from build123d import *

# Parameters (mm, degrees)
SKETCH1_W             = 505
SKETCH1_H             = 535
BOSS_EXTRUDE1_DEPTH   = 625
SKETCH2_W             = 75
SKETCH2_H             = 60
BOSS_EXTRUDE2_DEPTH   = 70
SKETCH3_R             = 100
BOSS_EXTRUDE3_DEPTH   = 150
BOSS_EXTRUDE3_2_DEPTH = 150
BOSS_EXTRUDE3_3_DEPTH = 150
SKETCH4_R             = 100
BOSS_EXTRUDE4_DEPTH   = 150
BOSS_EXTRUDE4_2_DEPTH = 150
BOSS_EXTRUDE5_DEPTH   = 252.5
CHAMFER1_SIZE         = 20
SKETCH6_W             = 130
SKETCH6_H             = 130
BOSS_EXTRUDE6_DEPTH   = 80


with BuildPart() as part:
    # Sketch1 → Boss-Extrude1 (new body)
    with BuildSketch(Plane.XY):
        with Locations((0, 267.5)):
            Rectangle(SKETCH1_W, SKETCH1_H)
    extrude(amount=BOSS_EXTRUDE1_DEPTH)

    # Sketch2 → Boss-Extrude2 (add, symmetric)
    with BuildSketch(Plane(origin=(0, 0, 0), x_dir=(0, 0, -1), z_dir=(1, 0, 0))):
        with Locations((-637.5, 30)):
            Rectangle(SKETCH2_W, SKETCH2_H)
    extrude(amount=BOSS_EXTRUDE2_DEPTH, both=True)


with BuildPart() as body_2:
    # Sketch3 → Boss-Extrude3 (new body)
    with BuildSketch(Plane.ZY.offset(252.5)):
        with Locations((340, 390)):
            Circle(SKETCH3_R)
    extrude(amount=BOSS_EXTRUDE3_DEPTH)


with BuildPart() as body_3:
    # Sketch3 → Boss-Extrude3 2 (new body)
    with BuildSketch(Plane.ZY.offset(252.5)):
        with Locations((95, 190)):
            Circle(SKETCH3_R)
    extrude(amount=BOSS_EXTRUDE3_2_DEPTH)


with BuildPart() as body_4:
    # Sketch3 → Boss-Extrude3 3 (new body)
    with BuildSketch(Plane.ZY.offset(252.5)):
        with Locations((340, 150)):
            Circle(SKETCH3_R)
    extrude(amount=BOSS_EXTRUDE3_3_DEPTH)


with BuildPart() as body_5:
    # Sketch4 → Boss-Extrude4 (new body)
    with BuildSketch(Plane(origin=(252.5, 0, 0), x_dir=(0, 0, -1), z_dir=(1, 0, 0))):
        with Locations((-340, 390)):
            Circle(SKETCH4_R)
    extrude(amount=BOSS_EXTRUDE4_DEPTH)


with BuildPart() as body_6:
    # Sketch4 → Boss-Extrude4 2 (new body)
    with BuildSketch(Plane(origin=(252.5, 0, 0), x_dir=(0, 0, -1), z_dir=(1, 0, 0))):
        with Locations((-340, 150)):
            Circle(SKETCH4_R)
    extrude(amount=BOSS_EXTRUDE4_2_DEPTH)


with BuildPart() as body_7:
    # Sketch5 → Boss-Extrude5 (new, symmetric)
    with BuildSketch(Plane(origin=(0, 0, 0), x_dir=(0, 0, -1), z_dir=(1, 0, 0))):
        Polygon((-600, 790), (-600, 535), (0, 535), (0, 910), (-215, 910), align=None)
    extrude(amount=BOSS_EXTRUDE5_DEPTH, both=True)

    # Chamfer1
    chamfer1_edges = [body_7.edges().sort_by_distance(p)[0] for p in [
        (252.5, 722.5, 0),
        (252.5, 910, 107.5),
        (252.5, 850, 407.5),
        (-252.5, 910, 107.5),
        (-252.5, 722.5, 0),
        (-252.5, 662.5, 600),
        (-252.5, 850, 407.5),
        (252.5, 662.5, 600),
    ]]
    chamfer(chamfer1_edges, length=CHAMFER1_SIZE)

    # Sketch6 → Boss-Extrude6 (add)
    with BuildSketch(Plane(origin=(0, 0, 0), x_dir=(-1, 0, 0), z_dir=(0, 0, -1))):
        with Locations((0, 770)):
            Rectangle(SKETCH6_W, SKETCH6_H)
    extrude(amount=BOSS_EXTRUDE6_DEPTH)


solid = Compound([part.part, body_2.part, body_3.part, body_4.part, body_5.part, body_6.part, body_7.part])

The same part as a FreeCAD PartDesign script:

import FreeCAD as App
import Part
import Sketcher
Q = App.Units.Quantity


def edges_at(feature, points):
    """Names of the edges that pass closest to the given points."""
    edges = feature.Shape.Edges
    near = lambda p: min(range(len(edges)), key=lambda i: edges[i].distToShape(Part.Vertex(*p))[0])
    return sorted({f"Edge{near(p) + 1}" for p in points})

doc = App.newDocument("Part")
body = doc.addObject("PartDesign::Body", "Body")

sketch1 = body.newObject("Sketcher::SketchObject", "Sketch")
sketch1.AttachmentSupport = (doc.getObject("XY_Plane"), [""])
sketch1.MapMode = "FlatFace"
sketch1.addGeometry([
    Part.LineSegment(App.Vector(-252, 535, 0), App.Vector(-252, 0, 0)),
    Part.LineSegment(App.Vector(-252, 0, 0), App.Vector(252, 0, 0)),
    Part.LineSegment(App.Vector(252, 0, 0), App.Vector(252, 535, 0)),
    Part.LineSegment(App.Vector(252, 535, 0), App.Vector(-252, 535, 0)),
], False)
sketch1.addConstraint([
    Sketcher.Constraint("Coincident", 0, 2, 1, 1),
    Sketcher.Constraint("Coincident", 1, 2, 2, 1),
    Sketcher.Constraint("Coincident", 2, 2, 3, 1),
    Sketcher.Constraint("Coincident", 3, 2, 0, 1),
    Sketcher.Constraint("Vertical", 0),
    Sketcher.Constraint("Horizontal", 1),
    Sketcher.Constraint("Vertical", 2),
    Sketcher.Constraint("Horizontal", 3),
    Sketcher.Constraint("Symmetric", 0, 2, 1, 2, -1, 1),
    Sketcher.Constraint("DistanceX", 1, 1, 1, 2, Q("505 mm")),
    Sketcher.Constraint("DistanceY", 0, 2, 0, 1, Q("535 mm")),
])
pad1 = body.newObject("PartDesign::Pad", "Pad")
pad1.Profile = sketch1
pad1.Length = 625

sketch2 = body.newObject("Sketcher::SketchObject", "Sketch001")
sketch2.AttachmentSupport = (doc.getObject("YZ_Plane"), [""])
sketch2.MapMode = "FlatFace"
sketch2.addGeometry([
    Part.LineSegment(App.Vector(60, 675, 0), App.Vector(0, 675, 0)),
    Part.LineSegment(App.Vector(0, 675, 0), App.Vector(0, 600, 0)),
    Part.LineSegment(App.Vector(0, 600, 0), App.Vector(60, 600, 0)),
    Part.LineSegment(App.Vector(60, 600, 0), App.Vector(60, 675, 0)),
], False)
sketch2.addConstraint([
    Sketcher.Constraint("Coincident", 0, 2, 1, 1),
    Sketcher.Constraint("Coincident", 1, 2, 2, 1),
    Sketcher.Constraint("Coincident", 2, 2, 3, 1),
    Sketcher.Constraint("Coincident", 3, 2, 0, 1),
    Sketcher.Constraint("Horizontal", 0),
    Sketcher.Constraint("Vertical", 1),
    Sketcher.Constraint("Horizontal", 2),
    Sketcher.Constraint("Vertical", 3),
    Sketcher.Constraint("PointOnObject", 0, 2, -2),
    Sketcher.Constraint("DistanceX", 0, 2, 0, 1, Q("60 mm")),
    Sketcher.Constraint("DistanceY", 1, 2, 1, 1, Q("75 mm")),
    Sketcher.Constraint("DistanceY", -1, 1, 0, 2, Q("675 mm")),
])
pad2 = body.newObject("PartDesign::Pad", "Pad001")
pad2.Profile = sketch2
pad2.Length = 140
pad2.Midplane = True
body2 = doc.addObject("PartDesign::Body", "Body001")

sketch3 = body2.newObject("Sketcher::SketchObject", "Sketch002")
sketch3.AttachmentSupport = (doc.getObject("YZ_Plane001"), [""])
sketch3.MapMode = "FlatFace"
sketch3.AttachmentOffset = App.Placement(App.Vector(0, 0, -252.5), App.Rotation())
sketch3.addGeometry(Part.Circle(App.Vector(390, 340, 0), App.Vector(0, 0, 1), 100), False)
sketch3.addConstraint([
    Sketcher.Constraint("Diameter", 0, Q("200 mm")),
    Sketcher.Constraint("DistanceX", -1, 1, 0, 3, Q("390 mm")),
    Sketcher.Constraint("DistanceY", -1, 1, 0, 3, Q("340 mm")),
])
pad3 = body2.newObject("PartDesign::Pad", "Pad002")
pad3.Profile = sketch3
pad3.Length = 150
pad3.Reversed = True
body3 = doc.addObject("PartDesign::Body", "Body002")

sketch4 = body3.newObject("Sketcher::SketchObject", "Sketch003")
sketch4.AttachmentSupport = (doc.getObject("YZ_Plane002"), [""])
sketch4.MapMode = "FlatFace"
sketch4.AttachmentOffset = App.Placement(App.Vector(0, 0, -252.5), App.Rotation())
sketch4.addGeometry(Part.Circle(App.Vector(190, 95, 0), App.Vector(0, 0, 1), 100), False)
sketch4.addConstraint([
    Sketcher.Constraint("Diameter", 0, Q("200 mm")),
    Sketcher.Constraint("DistanceX", -1, 1, 0, 3, Q("190 mm")),
    Sketcher.Constraint("DistanceY", -1, 1, 0, 3, Q("95 mm")),
])
pad4 = body3.newObject("PartDesign::Pad", "Pad003")
pad4.Profile = sketch4
pad4.Length = 150
pad4.Reversed = True
body4 = doc.addObject("PartDesign::Body", "Body003")

sketch5 = body4.newObject("Sketcher::SketchObject", "Sketch004")
sketch5.AttachmentSupport = (doc.getObject("YZ_Plane003"), [""])
sketch5.MapMode = "FlatFace"
sketch5.AttachmentOffset = App.Placement(App.Vector(0, 0, -252.5), App.Rotation())
sketch5.addGeometry(Part.Circle(App.Vector(150, 340, 0), App.Vector(0, 0, 1), 100), False)
sketch5.addConstraint([
    Sketcher.Constraint("Diameter", 0, Q("200 mm")),
    Sketcher.Constraint("DistanceX", -1, 1, 0, 3, Q("150 mm")),
    Sketcher.Constraint("DistanceY", -1, 1, 0, 3, Q("340 mm")),
])
pad5 = body4.newObject("PartDesign::Pad", "Pad004")
pad5.Profile = sketch5
pad5.Length = 150
pad5.Reversed = True
body5 = doc.addObject("PartDesign::Body", "Body004")

sketch6 = body5.newObject("Sketcher::SketchObject", "Sketch005")
sketch6.AttachmentSupport = (doc.getObject("YZ_Plane004"), [""])
sketch6.MapMode = "FlatFace"
sketch6.AttachmentOffset = App.Placement(App.Vector(0, 0, 252.5), App.Rotation())
sketch6.addGeometry(Part.Circle(App.Vector(390, 340, 0), App.Vector(0, 0, 1), 100), False)
sketch6.addConstraint([
    Sketcher.Constraint("Diameter", 0, Q("200 mm")),
    Sketcher.Constraint("DistanceX", -1, 1, 0, 3, Q("390 mm")),
    Sketcher.Constraint("DistanceY", -1, 1, 0, 3, Q("340 mm")),
])
pad6 = body5.newObject("PartDesign::Pad", "Pad005")
pad6.Profile = sketch6
pad6.Length = 150
body6 = doc.addObject("PartDesign::Body", "Body005")

sketch7 = body6.newObject("Sketcher::SketchObject", "Sketch006")
sketch7.AttachmentSupport = (doc.getObject("YZ_Plane005"), [""])
sketch7.MapMode = "FlatFace"
sketch7.AttachmentOffset = App.Placement(App.Vector(0, 0, 252.5), App.Rotation())
sketch7.addGeometry(Part.Circle(App.Vector(150, 340, 0), App.Vector(0, 0, 1), 100), False)
sketch7.addConstraint([
    Sketcher.Constraint("Diameter", 0, Q("200 mm")),
    Sketcher.Constraint("DistanceX", -1, 1, 0, 3, Q("150 mm")),
    Sketcher.Constraint("DistanceY", -1, 1, 0, 3, Q("340 mm")),
])
pad7 = body6.newObject("PartDesign::Pad", "Pad006")
pad7.Profile = sketch7
pad7.Length = 150
body7 = doc.addObject("PartDesign::Body", "Body006")

sketch8 = body7.newObject("Sketcher::SketchObject", "Sketch007")
sketch8.AttachmentSupport = (doc.getObject("YZ_Plane006"), [""])
sketch8.MapMode = "FlatFace"
sketch8.addGeometry([
    Part.LineSegment(App.Vector(790, 600, 0), App.Vector(535, 600, 0)),
    Part.LineSegment(App.Vector(535, 600, 0), App.Vector(535, 0, 0)),
    Part.LineSegment(App.Vector(535, 0, 0), App.Vector(910, 0, 0)),
    Part.LineSegment(App.Vector(910, 0, 0), App.Vector(910, 215, 0)),
    Part.LineSegment(App.Vector(910, 215, 0), App.Vector(790, 600, 0)),
], False)
sketch8.addConstraint([
    Sketcher.Constraint("Coincident", 0, 2, 1, 1),
    Sketcher.Constraint("Coincident", 1, 2, 2, 1),
    Sketcher.Constraint("Coincident", 2, 2, 3, 1),
    Sketcher.Constraint("Coincident", 3, 2, 4, 1),
    Sketcher.Constraint("Coincident", 4, 2, 0, 1),
    Sketcher.Constraint("Horizontal", 0),
    Sketcher.Constraint("Vertical", 1),
    Sketcher.Constraint("Horizontal", 2),
    Sketcher.Constraint("Vertical", 3),
    Sketcher.Constraint("PointOnObject", 1, 2, -1),
    Sketcher.Constraint("DistanceX", 0, 2, 0, 1, Q("255 mm")),
    Sketcher.Constraint("DistanceX", 2, 1, 2, 2, Q("375 mm")),
    Sketcher.Constraint("DistanceY", 1, 2, 1, 1, Q("600 mm")),
    Sketcher.Constraint("DistanceY", 3, 1, 3, 2, Q("215 mm")),
    Sketcher.Constraint("DistanceX", -1, 1, 0, 2, Q("535 mm")),
])
pad8 = body7.newObject("PartDesign::Pad", "Pad007")
pad8.Profile = sketch8
pad8.Length = 505
pad8.Midplane = True
doc.recompute()

chamfer = body7.newObject("PartDesign::Chamfer", "Chamfer")
chamfer.Base = (pad8, edges_at(pad8, [
    (252.5, 722.5, 0),
    (252.5, 910, 107.5),
    (252.5, 850, 407.5),
    (-252.5, 910, 107.5),
    (-252.5, 722.5, 0),
    (-252.5, 662.5, 600),
    (-252.5, 850, 407.5),
    (252.5, 662.5, 600),
]))
chamfer.Size = 20

sketch9 = body7.newObject("Sketcher::SketchObject", "Sketch008")
sketch9.AttachmentSupport = (doc.getObject("XY_Plane006"), [""])
sketch9.MapMode = "FlatFace"
sketch9.addGeometry([
    Part.LineSegment(App.Vector(65, 835, 0), App.Vector(65, 705, 0)),
    Part.LineSegment(App.Vector(65, 705, 0), App.Vector(-65, 705, 0)),
    Part.LineSegment(App.Vector(-65, 705, 0), App.Vector(-65, 835, 0)),
    Part.LineSegment(App.Vector(-65, 835, 0), App.Vector(65, 835, 0)),
], False)
sketch9.addConstraint([
    Sketcher.Constraint("Coincident", 0, 2, 1, 1),
    Sketcher.Constraint("Coincident", 1, 2, 2, 1),
    Sketcher.Constraint("Coincident", 2, 2, 3, 1),
    Sketcher.Constraint("Coincident", 3, 2, 0, 1),
    Sketcher.Constraint("Vertical", 0),
    Sketcher.Constraint("Horizontal", 1),
    Sketcher.Constraint("Vertical", 2),
    Sketcher.Constraint("Horizontal", 3),
    Sketcher.Constraint("Equal", 3, 0),
    Sketcher.Constraint("DistanceX", 1, 2, 1, 1, Q("130 mm")),
    Sketcher.Constraint("DistanceX", -1, 1, 0, 2, Q("65 mm")),
    Sketcher.Constraint("DistanceY", -1, 1, 0, 2, Q("705 mm")),
])
pad9 = body7.newObject("PartDesign::Pad", "Pad008")
pad9.Profile = sketch9
pad9.Length = 80
pad9.Reversed = True

doc.recompute()
